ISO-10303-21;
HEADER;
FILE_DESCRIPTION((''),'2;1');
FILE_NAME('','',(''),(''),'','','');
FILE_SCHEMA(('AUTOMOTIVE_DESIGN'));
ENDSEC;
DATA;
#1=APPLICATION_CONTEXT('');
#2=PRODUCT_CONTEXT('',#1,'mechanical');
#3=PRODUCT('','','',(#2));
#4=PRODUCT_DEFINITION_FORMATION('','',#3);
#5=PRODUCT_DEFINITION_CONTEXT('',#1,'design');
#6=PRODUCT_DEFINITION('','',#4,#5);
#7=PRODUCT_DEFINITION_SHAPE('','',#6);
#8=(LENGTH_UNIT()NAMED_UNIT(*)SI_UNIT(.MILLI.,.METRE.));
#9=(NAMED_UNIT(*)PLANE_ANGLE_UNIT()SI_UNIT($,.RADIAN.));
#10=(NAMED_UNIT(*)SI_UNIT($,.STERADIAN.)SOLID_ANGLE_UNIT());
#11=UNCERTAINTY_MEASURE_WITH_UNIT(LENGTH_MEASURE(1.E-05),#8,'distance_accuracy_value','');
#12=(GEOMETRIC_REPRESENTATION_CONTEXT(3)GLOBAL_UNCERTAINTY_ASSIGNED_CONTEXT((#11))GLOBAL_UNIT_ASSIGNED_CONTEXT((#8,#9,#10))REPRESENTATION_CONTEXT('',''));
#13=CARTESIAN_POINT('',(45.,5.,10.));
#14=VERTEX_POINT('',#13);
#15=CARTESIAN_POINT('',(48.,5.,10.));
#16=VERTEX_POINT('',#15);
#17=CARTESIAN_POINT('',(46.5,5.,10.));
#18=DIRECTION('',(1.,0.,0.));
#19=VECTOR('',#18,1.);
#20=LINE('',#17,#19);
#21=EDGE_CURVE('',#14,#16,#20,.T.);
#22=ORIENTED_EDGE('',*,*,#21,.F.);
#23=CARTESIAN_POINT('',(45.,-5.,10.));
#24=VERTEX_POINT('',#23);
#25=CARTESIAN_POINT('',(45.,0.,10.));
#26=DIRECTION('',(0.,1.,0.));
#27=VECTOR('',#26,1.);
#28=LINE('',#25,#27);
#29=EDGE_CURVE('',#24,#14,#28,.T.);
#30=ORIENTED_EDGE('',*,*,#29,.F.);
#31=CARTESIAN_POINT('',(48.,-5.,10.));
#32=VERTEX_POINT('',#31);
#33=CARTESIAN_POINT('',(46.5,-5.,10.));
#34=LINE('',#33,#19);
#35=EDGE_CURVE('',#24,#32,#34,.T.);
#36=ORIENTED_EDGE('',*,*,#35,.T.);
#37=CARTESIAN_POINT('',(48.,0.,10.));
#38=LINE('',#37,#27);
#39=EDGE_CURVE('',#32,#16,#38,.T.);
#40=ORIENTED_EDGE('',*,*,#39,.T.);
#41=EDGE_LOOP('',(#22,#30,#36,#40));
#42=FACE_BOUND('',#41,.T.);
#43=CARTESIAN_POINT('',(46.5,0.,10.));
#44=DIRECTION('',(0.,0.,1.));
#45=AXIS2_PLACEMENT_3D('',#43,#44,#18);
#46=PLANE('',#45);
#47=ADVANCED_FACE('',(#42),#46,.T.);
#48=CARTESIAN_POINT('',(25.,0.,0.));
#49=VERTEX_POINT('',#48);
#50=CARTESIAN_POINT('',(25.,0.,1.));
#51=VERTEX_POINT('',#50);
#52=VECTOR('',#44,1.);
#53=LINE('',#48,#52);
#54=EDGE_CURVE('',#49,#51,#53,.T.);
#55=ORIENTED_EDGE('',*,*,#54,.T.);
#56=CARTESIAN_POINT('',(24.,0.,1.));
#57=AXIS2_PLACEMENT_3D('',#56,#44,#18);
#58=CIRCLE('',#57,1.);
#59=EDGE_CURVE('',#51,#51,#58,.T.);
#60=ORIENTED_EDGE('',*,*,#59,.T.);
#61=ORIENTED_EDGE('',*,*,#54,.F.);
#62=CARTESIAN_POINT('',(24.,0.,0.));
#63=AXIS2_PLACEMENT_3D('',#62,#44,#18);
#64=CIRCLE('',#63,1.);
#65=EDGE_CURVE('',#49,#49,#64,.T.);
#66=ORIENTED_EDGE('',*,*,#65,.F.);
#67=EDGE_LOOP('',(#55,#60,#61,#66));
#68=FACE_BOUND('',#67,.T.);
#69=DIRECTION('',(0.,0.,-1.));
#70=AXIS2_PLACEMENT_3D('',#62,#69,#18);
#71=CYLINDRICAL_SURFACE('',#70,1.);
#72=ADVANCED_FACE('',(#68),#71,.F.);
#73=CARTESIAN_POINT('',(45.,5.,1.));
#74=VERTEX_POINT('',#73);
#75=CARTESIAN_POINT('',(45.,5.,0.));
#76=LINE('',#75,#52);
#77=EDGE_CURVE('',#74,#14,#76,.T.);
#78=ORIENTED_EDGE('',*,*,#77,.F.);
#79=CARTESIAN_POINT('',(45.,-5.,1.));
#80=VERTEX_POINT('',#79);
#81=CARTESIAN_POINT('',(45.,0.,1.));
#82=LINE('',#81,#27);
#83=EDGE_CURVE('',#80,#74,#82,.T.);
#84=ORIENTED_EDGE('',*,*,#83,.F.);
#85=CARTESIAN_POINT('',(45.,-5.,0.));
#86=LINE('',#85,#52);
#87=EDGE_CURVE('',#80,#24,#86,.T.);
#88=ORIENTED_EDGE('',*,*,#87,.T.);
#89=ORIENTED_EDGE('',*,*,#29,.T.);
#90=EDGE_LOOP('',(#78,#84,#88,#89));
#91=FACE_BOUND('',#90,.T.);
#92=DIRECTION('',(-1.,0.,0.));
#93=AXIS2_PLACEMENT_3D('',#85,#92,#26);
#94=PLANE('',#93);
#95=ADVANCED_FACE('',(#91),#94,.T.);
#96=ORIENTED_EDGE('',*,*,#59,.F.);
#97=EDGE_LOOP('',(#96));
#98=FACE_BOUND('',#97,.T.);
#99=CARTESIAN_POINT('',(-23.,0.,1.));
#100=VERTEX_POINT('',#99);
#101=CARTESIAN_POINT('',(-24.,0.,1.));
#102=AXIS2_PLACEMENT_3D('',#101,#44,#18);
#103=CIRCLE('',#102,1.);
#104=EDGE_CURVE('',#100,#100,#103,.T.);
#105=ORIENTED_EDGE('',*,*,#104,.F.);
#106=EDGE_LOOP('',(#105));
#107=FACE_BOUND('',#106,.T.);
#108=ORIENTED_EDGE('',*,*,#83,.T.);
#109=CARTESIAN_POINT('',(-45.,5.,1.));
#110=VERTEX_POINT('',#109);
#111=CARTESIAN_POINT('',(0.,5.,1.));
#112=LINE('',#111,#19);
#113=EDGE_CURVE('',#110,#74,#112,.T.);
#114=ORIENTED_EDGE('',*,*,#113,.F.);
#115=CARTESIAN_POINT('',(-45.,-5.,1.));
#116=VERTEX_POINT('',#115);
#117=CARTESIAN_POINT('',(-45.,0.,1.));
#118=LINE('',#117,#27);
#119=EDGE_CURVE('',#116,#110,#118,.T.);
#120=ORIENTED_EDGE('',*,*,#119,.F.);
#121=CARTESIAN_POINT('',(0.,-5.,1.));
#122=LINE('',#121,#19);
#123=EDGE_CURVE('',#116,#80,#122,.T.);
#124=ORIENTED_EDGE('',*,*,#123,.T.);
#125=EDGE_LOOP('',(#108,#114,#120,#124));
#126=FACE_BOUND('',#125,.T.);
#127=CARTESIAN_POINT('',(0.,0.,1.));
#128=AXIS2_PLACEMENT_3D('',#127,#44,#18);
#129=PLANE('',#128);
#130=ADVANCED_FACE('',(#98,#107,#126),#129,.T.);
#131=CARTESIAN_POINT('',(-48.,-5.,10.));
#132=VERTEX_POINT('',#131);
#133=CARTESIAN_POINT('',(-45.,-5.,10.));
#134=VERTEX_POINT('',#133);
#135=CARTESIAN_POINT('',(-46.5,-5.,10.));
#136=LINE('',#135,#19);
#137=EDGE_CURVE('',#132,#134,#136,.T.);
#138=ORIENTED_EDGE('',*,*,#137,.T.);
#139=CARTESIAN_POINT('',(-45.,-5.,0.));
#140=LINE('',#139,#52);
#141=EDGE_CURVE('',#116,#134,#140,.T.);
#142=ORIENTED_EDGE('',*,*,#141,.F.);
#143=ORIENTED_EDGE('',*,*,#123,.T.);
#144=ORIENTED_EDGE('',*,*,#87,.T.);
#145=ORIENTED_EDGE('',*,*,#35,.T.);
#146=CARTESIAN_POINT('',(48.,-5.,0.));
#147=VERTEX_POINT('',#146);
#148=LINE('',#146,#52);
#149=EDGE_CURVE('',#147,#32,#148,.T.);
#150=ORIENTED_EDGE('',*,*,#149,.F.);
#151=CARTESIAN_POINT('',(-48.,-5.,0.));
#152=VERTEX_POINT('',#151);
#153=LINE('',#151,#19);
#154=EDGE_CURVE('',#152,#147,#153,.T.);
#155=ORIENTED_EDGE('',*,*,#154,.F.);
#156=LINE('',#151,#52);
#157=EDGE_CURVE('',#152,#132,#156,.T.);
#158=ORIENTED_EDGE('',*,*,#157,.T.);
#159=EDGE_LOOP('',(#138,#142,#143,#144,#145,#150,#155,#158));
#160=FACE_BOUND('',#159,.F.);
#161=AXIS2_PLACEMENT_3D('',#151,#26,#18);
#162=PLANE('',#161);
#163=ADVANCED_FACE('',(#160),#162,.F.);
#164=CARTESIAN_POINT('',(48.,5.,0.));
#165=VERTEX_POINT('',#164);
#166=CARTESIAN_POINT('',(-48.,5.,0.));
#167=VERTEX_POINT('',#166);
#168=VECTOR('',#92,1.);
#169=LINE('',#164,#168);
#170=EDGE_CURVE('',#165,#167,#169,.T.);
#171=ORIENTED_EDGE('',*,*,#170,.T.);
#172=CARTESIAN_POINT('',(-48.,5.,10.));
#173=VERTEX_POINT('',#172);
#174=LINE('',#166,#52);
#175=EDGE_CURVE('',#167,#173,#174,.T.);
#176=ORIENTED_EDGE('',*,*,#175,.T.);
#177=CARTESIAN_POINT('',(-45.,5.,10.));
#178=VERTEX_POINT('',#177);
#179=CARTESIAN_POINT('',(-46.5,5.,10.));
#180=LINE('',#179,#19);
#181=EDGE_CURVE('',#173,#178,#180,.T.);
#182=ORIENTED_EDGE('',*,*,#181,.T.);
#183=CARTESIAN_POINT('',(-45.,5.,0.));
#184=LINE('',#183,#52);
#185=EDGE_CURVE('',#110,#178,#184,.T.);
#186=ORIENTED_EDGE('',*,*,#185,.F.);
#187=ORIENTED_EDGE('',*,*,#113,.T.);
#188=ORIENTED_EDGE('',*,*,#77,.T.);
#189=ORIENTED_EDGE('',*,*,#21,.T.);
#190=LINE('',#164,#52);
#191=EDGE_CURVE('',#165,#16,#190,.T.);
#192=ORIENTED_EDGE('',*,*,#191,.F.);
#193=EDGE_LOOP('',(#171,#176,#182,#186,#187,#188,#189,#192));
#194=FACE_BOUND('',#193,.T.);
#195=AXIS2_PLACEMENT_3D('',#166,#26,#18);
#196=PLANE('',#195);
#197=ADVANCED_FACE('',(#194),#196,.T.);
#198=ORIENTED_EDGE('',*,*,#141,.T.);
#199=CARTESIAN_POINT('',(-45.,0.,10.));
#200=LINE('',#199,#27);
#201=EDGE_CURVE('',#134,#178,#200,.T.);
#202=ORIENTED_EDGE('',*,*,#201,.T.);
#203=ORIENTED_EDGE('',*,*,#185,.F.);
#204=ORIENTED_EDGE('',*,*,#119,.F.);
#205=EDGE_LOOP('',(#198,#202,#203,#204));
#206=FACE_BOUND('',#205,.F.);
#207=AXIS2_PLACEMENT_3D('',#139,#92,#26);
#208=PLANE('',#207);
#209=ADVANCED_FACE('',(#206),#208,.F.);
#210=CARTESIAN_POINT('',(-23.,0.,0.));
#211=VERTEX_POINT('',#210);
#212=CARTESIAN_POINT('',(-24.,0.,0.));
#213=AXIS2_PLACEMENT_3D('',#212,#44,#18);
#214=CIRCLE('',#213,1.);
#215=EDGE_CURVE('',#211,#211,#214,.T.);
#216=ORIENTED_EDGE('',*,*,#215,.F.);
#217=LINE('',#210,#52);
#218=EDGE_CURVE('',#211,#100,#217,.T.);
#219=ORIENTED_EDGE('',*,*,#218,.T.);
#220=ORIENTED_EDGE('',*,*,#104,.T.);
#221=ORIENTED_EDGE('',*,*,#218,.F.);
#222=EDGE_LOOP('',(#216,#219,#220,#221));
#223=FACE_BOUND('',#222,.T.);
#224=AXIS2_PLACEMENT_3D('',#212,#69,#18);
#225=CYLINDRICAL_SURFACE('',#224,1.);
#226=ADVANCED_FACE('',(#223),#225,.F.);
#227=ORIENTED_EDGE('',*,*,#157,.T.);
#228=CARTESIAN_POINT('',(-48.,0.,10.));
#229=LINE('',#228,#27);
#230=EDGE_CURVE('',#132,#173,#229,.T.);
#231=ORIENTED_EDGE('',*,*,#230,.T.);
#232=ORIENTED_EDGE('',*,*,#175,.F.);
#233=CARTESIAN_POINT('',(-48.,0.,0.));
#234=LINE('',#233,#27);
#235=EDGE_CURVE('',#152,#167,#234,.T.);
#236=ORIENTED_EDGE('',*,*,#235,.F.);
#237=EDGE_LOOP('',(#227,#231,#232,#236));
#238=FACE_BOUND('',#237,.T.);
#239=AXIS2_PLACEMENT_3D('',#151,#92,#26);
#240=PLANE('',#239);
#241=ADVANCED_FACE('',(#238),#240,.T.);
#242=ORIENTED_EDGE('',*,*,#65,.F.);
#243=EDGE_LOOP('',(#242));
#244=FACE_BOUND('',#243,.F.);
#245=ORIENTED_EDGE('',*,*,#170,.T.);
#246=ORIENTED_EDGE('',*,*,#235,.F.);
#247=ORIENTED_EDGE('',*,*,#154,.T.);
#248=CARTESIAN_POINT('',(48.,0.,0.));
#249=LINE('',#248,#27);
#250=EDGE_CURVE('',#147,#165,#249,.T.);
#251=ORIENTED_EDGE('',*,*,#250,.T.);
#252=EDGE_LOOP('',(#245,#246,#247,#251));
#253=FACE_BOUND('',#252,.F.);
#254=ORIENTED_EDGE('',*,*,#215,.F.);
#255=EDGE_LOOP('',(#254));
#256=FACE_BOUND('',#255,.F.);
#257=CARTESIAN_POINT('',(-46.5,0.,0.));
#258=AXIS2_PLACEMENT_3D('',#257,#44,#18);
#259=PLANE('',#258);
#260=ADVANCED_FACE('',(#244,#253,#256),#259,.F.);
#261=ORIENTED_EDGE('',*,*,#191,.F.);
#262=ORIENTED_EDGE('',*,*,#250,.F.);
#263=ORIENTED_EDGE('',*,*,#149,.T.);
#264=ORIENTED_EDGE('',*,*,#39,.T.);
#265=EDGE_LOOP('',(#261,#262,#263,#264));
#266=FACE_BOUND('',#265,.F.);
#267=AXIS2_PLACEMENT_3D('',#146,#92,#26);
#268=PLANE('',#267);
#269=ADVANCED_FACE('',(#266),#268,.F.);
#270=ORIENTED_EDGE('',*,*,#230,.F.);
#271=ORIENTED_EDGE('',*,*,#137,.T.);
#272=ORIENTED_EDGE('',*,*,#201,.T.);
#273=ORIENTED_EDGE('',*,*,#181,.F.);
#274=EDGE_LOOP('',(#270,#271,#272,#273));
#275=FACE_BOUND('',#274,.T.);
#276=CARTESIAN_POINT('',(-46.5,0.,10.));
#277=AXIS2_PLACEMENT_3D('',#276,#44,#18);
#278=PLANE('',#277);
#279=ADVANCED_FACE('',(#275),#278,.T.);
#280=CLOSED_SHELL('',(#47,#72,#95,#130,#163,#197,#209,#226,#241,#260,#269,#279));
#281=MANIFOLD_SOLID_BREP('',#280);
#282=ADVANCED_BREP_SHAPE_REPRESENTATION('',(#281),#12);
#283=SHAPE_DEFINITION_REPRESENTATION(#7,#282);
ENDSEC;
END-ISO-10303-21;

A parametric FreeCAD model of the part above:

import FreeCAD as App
import Part
import Sketcher
from FreeCAD import Vector
Q = App.Units.Quantity


def add_polygon(sketch, points):
    """Adds a closed chain of lines whose ends are joined by coincident constraints."""
    first, n = sketch.GeometryCount, len(points)
    for a, b in zip(points, points[1:] + points[:1]):
        sketch.addGeometry(Part.LineSegment(App.Vector(*a, 0), App.Vector(*b, 0)), False)
    for i in range(n):
        sketch.addConstraint(Sketcher.Constraint("Coincident", first + i, 2, first + (i + 1) % n, 1))

doc = App.newDocument("Part")
body = doc.addObject("PartDesign::Body", "Body")

# Sketch on XY plane
sketch1 = doc.addObject("Sketcher::SketchObject", "Sketch")
body.addObject(sketch1)
sketch1.AttachmentSupport = (doc.XY_Plane, [""])
sketch1.MapMode = "FlatFace"
add_polygon(sketch1, [(-45, 5), (-45, -5), (45, -5), (45, 5)])  # lines 0-3
sketch1.addGeometry(Part.Circle(Vector(-24, 0, 0), Vector(0, 0, 1), 1), False)  # 4
sketch1.addGeometry(Part.Circle(Vector(24, 0, 0), Vector(0, 0, 1), 1), False)  # 5
sketch1.addConstraint([
    Sketcher.Constraint("Vertical", 0),
    Sketcher.Constraint("Horizontal", 1),
    Sketcher.Constraint("Vertical", 2),
    Sketcher.Constraint("Horizontal", 3),
    Sketcher.Constraint("Equal", 4, 5),
    Sketcher.Constraint("Symmetric", 4, 3, 5, 3, -1, 1),
    Sketcher.Constraint("Symmetric", 0, 2, 2, 2, -1, 1),
    Sketcher.Constraint("PointOnObject", 4, 3, -1),
    Sketcher.Constraint("Diameter", 4, Q("2 mm")),
    Sketcher.Constraint("DistanceX", 1, 1, 1, 2, Q("90 mm")),
    Sketcher.Constraint("DistanceY", 0, 2, 0, 1, Q("10 mm")),
    Sketcher.Constraint("DistanceX", 4, 3, -1, 1, Q("24 mm")),
])
pad1 = doc.addObject("PartDesign::Pad", "Pad")
body.addObject(pad1)
pad1.Profile = sketch1
pad1.Length = 1

# Sketch on XY plane
sketch2 = doc.addObject("Sketcher::SketchObject", "Sketch001")
body.addObject(sketch2)
sketch2.AttachmentSupport = (doc.XY_Plane, [""])
sketch2.MapMode = "FlatFace"
add_polygon(sketch2, [(-48, 5), (-48, -5), (-45, -5), (-45, 5)])  # lines 0-3
add_polygon(sketch2, [(45, 5), (45, -5), (48, -5), (48, 5)])  # lines 4-7
sketch2.addConstraint([
    Sketcher.Constraint("Vertical", 0),
    Sketcher.Constraint("Horizontal", 1),
    Sketcher.Constraint("Vertical", 2),
    Sketcher.Constraint("Horizontal", 3),
    Sketcher.Constraint("Vertical", 4),
    Sketcher.Constraint("Horizontal", 5),
    Sketcher.Constraint("Vertical", 6),
    Sketcher.Constraint("Horizontal", 7),
    Sketcher.Constraint("Symmetric", 2, 2, 4, 2, -1, 1),
    Sketcher.Constraint("Symmetric", 0, 2, 6, 2, -1, 1),
    Sketcher.Constraint("Horizontal", 1, 2, 4, 2),
    Sketcher.Constraint("DistanceX", 1, 1, 1, 2, Q("3 mm")),
    Sketcher.Constraint("DistanceY", 0, 2, 0, 1, Q("10 mm")),
    Sketcher.Constraint("DistanceX", 0, 2, -1, 1, Q("48 mm")),
])
pad2 = doc.addObject("PartDesign::Pad", "Pad001")
body.addObject(pad2)
pad2.Profile = sketch2
pad2.Length = 10

doc.recompute()
